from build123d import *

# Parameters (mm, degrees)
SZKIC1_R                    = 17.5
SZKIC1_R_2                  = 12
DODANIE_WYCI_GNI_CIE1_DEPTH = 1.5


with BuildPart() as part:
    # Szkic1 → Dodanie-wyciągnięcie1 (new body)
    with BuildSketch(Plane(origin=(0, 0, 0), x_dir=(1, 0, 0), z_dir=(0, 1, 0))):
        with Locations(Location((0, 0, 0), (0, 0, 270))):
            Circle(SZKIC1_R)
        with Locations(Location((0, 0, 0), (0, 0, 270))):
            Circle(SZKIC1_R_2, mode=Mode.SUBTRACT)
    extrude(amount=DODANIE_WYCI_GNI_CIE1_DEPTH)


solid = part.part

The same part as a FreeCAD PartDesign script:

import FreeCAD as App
import Part
import Sketcher

doc = App.newDocument("Part")
body = doc.addObject("PartDesign::Body", "Body")

sketch1 = body.newObject("Sketcher::SketchObject", "Sketch")
sketch1.AttachmentSupport = (doc.getObject("XZ_Plane"), [""])
sketch1.MapMode = "FlatFace"
sketch1.addGeometry(Part.Circle(App.Vector(0, 0, 0), App.Vector(0, 0, 1), 17.5), False)
sketch1.addGeometry(Part.Circle(App.Vector(0, 0, 0), App.Vector(0, 0, 1), 12), False)
sketch1.addConstraint(Sketcher.Constraint("Coincident", 0, 3, -1, 1))
sketch1.addConstraint(Sketcher.Constraint("Coincident", 1, 3, -1, 1))
sketch1.addConstraint(Sketcher.Constraint("Diameter", 0, 35.0))
sketch1.addConstraint(Sketcher.Constraint("Diameter", 1, 24.0))
pad1 = body.newObject("PartDesign::Pad", "Pad")
pad1.Profile = sketch1
pad1.Length = 1.5
pad1.Reversed = True

doc.recompute()
